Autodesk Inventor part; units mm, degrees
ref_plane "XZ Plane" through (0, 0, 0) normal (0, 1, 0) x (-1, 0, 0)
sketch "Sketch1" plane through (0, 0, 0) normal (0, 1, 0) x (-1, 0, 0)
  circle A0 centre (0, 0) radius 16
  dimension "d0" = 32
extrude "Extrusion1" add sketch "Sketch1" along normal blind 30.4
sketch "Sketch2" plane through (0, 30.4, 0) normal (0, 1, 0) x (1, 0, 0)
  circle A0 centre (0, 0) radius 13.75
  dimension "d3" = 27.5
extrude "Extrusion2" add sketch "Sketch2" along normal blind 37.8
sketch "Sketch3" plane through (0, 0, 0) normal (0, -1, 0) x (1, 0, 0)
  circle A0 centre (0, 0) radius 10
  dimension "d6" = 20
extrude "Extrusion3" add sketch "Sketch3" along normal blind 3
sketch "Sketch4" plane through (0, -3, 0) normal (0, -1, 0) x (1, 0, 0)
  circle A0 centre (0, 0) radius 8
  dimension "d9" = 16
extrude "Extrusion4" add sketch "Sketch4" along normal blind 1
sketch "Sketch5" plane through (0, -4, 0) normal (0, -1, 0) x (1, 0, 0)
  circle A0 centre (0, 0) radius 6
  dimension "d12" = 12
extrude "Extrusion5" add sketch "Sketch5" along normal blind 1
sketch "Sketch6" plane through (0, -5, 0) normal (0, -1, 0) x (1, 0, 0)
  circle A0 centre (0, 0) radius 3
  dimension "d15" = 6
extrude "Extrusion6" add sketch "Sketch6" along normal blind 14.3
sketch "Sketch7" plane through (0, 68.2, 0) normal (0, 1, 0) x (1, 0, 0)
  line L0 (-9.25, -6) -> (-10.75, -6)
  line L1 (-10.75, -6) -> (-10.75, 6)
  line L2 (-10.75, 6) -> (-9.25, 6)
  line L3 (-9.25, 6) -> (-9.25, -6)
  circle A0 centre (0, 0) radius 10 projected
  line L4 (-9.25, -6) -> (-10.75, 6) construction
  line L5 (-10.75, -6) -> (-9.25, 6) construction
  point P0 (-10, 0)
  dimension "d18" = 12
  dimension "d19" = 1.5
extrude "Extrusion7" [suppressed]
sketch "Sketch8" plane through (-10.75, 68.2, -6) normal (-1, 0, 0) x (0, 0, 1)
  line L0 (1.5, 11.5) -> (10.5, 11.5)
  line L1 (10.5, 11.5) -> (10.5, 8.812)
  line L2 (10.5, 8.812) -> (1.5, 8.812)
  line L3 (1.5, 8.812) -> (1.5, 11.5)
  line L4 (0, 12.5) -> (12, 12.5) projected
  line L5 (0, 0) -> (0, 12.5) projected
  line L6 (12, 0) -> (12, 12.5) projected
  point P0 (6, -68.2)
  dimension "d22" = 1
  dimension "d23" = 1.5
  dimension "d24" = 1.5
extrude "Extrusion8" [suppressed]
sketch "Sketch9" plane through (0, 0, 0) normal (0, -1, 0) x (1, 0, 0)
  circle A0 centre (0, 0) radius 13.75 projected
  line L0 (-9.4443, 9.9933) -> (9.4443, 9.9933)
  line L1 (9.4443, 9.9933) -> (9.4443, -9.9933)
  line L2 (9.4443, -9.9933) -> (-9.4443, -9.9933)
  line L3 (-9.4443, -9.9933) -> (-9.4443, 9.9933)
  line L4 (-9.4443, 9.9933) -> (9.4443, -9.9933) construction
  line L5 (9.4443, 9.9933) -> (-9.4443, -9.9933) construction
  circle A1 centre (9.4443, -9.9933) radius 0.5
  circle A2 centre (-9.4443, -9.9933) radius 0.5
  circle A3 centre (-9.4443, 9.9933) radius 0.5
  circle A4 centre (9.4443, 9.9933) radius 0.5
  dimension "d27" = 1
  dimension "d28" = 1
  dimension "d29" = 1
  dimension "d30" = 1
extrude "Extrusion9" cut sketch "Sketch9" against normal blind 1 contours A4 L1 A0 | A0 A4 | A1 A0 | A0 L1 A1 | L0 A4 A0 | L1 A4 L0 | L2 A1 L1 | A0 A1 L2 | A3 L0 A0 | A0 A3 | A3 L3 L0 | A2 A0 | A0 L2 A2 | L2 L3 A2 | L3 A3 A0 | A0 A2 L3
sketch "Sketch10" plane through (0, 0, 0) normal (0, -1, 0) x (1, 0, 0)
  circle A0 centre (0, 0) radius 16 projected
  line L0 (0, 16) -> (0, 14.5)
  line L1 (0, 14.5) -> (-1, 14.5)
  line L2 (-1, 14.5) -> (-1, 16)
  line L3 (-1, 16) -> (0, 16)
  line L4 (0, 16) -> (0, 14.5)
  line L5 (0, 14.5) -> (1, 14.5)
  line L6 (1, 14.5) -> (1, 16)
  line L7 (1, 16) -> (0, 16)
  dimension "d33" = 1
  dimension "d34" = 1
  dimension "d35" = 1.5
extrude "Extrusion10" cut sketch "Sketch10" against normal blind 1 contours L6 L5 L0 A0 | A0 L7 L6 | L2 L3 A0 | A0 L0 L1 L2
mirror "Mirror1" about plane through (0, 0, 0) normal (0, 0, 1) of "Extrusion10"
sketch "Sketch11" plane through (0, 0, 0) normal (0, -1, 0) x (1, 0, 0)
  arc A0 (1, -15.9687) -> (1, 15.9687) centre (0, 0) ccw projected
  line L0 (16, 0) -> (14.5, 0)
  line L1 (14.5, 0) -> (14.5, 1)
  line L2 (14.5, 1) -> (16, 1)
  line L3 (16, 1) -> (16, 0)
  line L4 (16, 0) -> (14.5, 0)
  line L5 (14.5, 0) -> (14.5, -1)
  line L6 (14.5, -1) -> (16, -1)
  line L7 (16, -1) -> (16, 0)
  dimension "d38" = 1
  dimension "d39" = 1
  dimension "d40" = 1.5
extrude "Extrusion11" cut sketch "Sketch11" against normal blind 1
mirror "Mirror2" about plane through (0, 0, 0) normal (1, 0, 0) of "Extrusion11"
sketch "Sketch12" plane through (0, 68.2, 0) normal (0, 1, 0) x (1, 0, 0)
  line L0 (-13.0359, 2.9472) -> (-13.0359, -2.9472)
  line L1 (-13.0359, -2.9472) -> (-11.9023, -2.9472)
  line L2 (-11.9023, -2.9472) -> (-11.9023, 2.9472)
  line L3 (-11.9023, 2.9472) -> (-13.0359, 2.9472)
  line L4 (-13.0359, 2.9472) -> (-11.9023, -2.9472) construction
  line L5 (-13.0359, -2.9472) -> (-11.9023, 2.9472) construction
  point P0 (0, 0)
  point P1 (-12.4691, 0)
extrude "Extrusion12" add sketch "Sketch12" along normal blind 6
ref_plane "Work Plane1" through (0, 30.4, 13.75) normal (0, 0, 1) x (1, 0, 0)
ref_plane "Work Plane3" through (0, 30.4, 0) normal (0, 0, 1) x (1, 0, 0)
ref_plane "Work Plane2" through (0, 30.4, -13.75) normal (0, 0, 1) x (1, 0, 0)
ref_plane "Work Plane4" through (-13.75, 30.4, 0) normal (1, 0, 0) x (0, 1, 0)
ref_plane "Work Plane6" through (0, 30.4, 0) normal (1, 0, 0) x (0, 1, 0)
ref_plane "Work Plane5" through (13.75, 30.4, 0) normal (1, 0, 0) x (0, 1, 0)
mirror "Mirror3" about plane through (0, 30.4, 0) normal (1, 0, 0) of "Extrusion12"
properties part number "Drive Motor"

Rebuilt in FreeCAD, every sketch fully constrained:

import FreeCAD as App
import Part
import Sketcher
from FreeCAD import Vector
Q = App.Units.Quantity


def add_polygon(sketch, points):
    """Adds a closed chain of lines whose ends are joined by coincident constraints."""
    first, n = sketch.GeometryCount, len(points)
    for a, b in zip(points, points[1:] + points[:1]):
        sketch.addGeometry(Part.LineSegment(App.Vector(*a, 0), App.Vector(*b, 0)), False)
    for i in range(n):
        sketch.addConstraint(Sketcher.Constraint("Coincident", first + i, 2, first + (i + 1) % n, 1))

doc = App.newDocument("Part")
params = doc.addObject("Spreadsheet::Sheet", "Params")
for row, (alias, value) in enumerate([
    ("sketch1_diameter", "32 mm"),
    ("pad1_length", "30.4 mm"),
    ("sketch2_diameter", "27.5 mm"),
    ("pad2_length", "37.8 mm"),
    ("sketch3_diameter", "20 mm"),
    ("pad3_length", "3 mm"),
    ("sketch4_diameter", "16 mm"),
    ("pad4_length", "1 mm"),
    ("sketch5_diameter", "12 mm"),
    ("pad5_length", "1 mm"),
    ("sketch6_diameter", "6 mm"),
    ("pad6_length", "14.3 mm"),
    ("sketch7_diameter", "1 mm"),
    ("pocket1_length", "1 mm"),
    ("sketch8_height", "1.5 mm"),
    ("pocket2_length", "1 mm"),
    ("sketch9_width", "1.5 mm"),
    ("pocket3_length", "1 mm"),
    ("pad7_length", "6 mm"),
], start=1):
    params.set(f"A{row}", alias)
    params.set(f"B{row}", "=" + value)
    params.setAlias(f"B{row}", alias)

body = doc.addObject("PartDesign::Body", "Body")

sketch1 = doc.addObject("Sketcher::SketchObject", "Sketch")
body.addObject(sketch1)
sketch1.AttachmentSupport = (doc.XZ_Plane, [""])
sketch1.MapMode = "FlatFace"
sketch1.addGeometry(Part.Circle(Vector(0, 0, 0), Vector(0, 0, 1), 16), False)
sketch1.addConstraint([
    Sketcher.Constraint("Coincident", 0, 3, -1, 1),
    Sketcher.Constraint("Diameter", 0, Q("32 mm")),
])
sketch1.setExpression("Constraints[1]", "Params.sketch1_diameter")
pad1 = doc.addObject("PartDesign::Pad", "Pad")
body.addObject(pad1)
pad1.Profile = sketch1
pad1.setExpression("Length", "Params.pad1_length")
pad1.Reversed = True

sketch2 = doc.addObject("Sketcher::SketchObject", "Sketch001")
body.addObject(sketch2)
sketch2.AttachmentSupport = (doc.XZ_Plane, [""])
sketch2.MapMode = "FlatFace"
sketch2.AttachmentOffset = App.Placement(Vector(0, 0, -30.4), App.Rotation())
sketch2.addGeometry(Part.Circle(Vector(0, 0, 0), Vector(0, 0, 1), 14), False)
sketch2.addConstraint([
    Sketcher.Constraint("Coincident", 0, 3, -1, 1),
    Sketcher.Constraint("Diameter", 0, Q("27.5 mm")),
])
sketch2.setExpression("Constraints[1]", "Params.sketch2_diameter")
pad2 = doc.addObject("PartDesign::Pad", "Pad001")
body.addObject(pad2)
pad2.Profile = sketch2
pad2.setExpression("Length", "Params.pad2_length")
pad2.Reversed = True

sketch3 = doc.addObject("Sketcher::SketchObject", "Sketch002")
body.addObject(sketch3)
sketch3.AttachmentSupport = (doc.XZ_Plane, [""])
sketch3.MapMode = "FlatFace"
sketch3.addGeometry(Part.Circle(Vector(0, 0, 0), Vector(0, 0, 1), 10), False)
sketch3.addConstraint([
    Sketcher.Constraint("Coincident", 0, 3, -1, 1),
    Sketcher.Constraint("Diameter", 0, Q("20 mm")),
])
sketch3.setExpression("Constraints[1]", "Params.sketch3_diameter")
pad3 = doc.addObject("PartDesign::Pad", "Pad002")
body.addObject(pad3)
pad3.Profile = sketch3
pad3.setExpression("Length", "Params.pad3_length")

sketch4 = doc.addObject("Sketcher::SketchObject", "Sketch003")
body.addObject(sketch4)
sketch4.AttachmentSupport = (doc.XZ_Plane, [""])
sketch4.MapMode = "FlatFace"
sketch4.AttachmentOffset = App.Placement(Vector(0, 0, 3), App.Rotation())
sketch4.addGeometry(Part.Circle(Vector(0, 0, 0), Vector(0, 0, 1), 8), False)
sketch4.addConstraint([
    Sketcher.Constraint("Coincident", 0, 3, -1, 1),
    Sketcher.Constraint("Diameter", 0, Q("16 mm")),
])
sketch4.setExpression("Constraints[1]", "Params.sketch4_diameter")
pad4 = doc.addObject("PartDesign::Pad", "Pad003")
body.addObject(pad4)
pad4.Profile = sketch4
pad4.setExpression("Length", "Params.pad4_length")

sketch5 = doc.addObject("Sketcher::SketchObject", "Sketch004")
body.addObject(sketch5)
sketch5.AttachmentSupport = (doc.XZ_Plane, [""])
sketch5.MapMode = "FlatFace"
sketch5.AttachmentOffset = App.Placement(Vector(0, 0, 4), App.Rotation())
sketch5.addGeometry(Part.Circle(Vector(0, 0, 0), Vector(0, 0, 1), 6), False)
sketch5.addConstraint([
    Sketcher.Constraint("Coincident", 0, 3, -1, 1),
    Sketcher.Constraint("Diameter", 0, Q("12 mm")),
])
sketch5.setExpression("Constraints[1]", "Params.sketch5_diameter")
pad5 = doc.addObject("PartDesign::Pad", "Pad004")
body.addObject(pad5)
pad5.Profile = sketch5
pad5.setExpression("Length", "Params.pad5_length")

sketch6 = doc.addObject("Sketcher::SketchObject", "Sketch005")
body.addObject(sketch6)
sketch6.AttachmentSupport = (doc.XZ_Plane, [""])
sketch6.MapMode = "FlatFace"
sketch6.AttachmentOffset = App.Placement(Vector(0, 0, 5), App.Rotation())
sketch6.addGeometry(Part.Circle(Vector(0, 0, 0), Vector(0, 0, 1), 3), False)
sketch6.addConstraint([
    Sketcher.Constraint("Coincident", 0, 3, -1, 1),
    Sketcher.Constraint("Diameter", 0, Q("6 mm")),
])
sketch6.setExpression("Constraints[1]", "Params.sketch6_diameter")
pad6 = doc.addObject("PartDesign::Pad", "Pad005")
body.addObject(pad6)
pad6.Profile = sketch6
pad6.setExpression("Length", "Params.pad6_length")

sketch7 = doc.addObject("Sketcher::SketchObject", "Sketch006")
body.addObject(sketch7)
sketch7.AttachmentSupport = (doc.XZ_Plane, [""])
sketch7.MapMode = "FlatFace"
sketch7.addGeometry([
    Part.Circle(Vector(9.4, 10, 0), Vector(0, 0, 1), 0.5),
    Part.Circle(Vector(9.4, -10, 0), Vector(0, 0, 1), 0.5),
    Part.Circle(Vector(-9.4, 10, 0), Vector(0, 0, 1), 0.5),
    Part.Circle(Vector(-9.4, -10, 0), Vector(0, 0, 1), 0.5),
], False)
sketch7.addConstraint([
    Sketcher.Constraint("Equal", 0, 1),
    Sketcher.Constraint("Equal", 1, 2),
    Sketcher.Constraint("Equal", 2, 3),
    Sketcher.Constraint("Symmetric", 1, 3, 2, 3, -1, 1),
    Sketcher.Constraint("Symmetric", 0, 3, 3, 3, -1, 1),
    Sketcher.Constraint("Symmetric", 0, 3, 2, 3, -2),
    Sketcher.Constraint("Diameter", 0, Q("1 mm")),
    Sketcher.Constraint("DistanceX", -1, 1, 0, 3, Q("9.4443 mm")),
    Sketcher.Constraint("DistanceY", -1, 1, 0, 3, Q("9.9933 mm")),
])
sketch7.setExpression("Constraints[6]", "Params.sketch7_diameter")
pocket1 = doc.addObject("PartDesign::Pocket", "Pocket")
body.addObject(pocket1)
pocket1.Profile = sketch7
pocket1.setExpression("Length", "Params.pocket1_length")

sketch8 = doc.addObject("Sketcher::SketchObject", "Sketch007")
body.addObject(sketch8)
sketch8.AttachmentSupport = (doc.XZ_Plane, [""])
sketch8.MapMode = "FlatFace"
add_polygon(sketch8, [(1, 14.5), (1, 16), (-1, 16), (-1, 14.5)])
sketch8.addConstraint([
    Sketcher.Constraint("Vertical", 0),
    Sketcher.Constraint("Horizontal", 1),
    Sketcher.Constraint("Vertical", 2),
    Sketcher.Constraint("Horizontal", 3),
    Sketcher.Constraint("DistanceY", 0, 1, 0, 2, Q("1.5 mm")),
    Sketcher.Constraint("DistanceX", -1, 1, 0, 2, Q("1 mm")),
    Sketcher.Constraint("DistanceX", 1, 2, -1, 1, Q("1 mm")),
    Sketcher.Constraint("DistanceY", -1, 1, 0, 2, Q("16 mm")),
])
sketch8.setExpression("Constraints[8]", "Params.sketch8_height")
pocket2 = doc.addObject("PartDesign::Pocket", "Pocket001")
body.addObject(pocket2)
pocket2.Profile = sketch8
pocket2.setExpression("Length", "Params.pocket2_length")
doc.recompute()

mirrored = doc.addObject("PartDesign::Mirrored", "Mirrored")
body.addObject(mirrored)
mirrored.Originals = [pocket2]
mirrored.MirrorPlane = (doc.XY_Plane, [""])
body.Tip = mirrored

sketch9 = doc.addObject("Sketcher::SketchObject", "Sketch008")
body.addObject(sketch9)
sketch9.AttachmentSupport = (doc.XZ_Plane, [""])
sketch9.MapMode = "FlatFace"
add_polygon(sketch9, [(14.5, -1), (16, -1), (16, 1), (14.5, 1)])
sketch9.addConstraint([
    Sketcher.Constraint("Horizontal", 0),
    Sketcher.Constraint("Vertical", 1),
    Sketcher.Constraint("Horizontal", 2),
    Sketcher.Constraint("Vertical", 3),
    Sketcher.Constraint("DistanceX", 0, 1, 0, 2, Q("1.5 mm")),
    Sketcher.Constraint("DistanceY", 0, 2, -1, 1, Q("1 mm")),
    Sketcher.Constraint("DistanceY", -1, 1, 1, 2, Q("1 mm")),
    Sketcher.Constraint("DistanceX", -1, 1, 0, 2, Q("16 mm")),
])
sketch9.setExpression("Constraints[8]", "Params.sketch9_width")
pocket3 = doc.addObject("PartDesign::Pocket", "Pocket002")
body.addObject(pocket3)
pocket3.Profile = sketch9
pocket3.setExpression("Length", "Params.pocket3_length")
doc.recompute()

mirrored2 = doc.addObject("PartDesign::Mirrored", "Mirrored001")
body.addObject(mirrored2)
mirrored2.Originals = [pocket3]
mirrored2.MirrorPlane = (doc.YZ_Plane, [""])
body.Tip = mirrored2

sketch10 = doc.addObject("Sketcher::SketchObject", "Sketch009")
body.addObject(sketch10)
sketch10.AttachmentSupport = (doc.XZ_Plane, [""])
sketch10.MapMode = "FlatFace"
sketch10.AttachmentOffset = App.Placement(Vector(0, 0, -68.2), App.Rotation())
add_polygon(sketch10, [(-11.9, -2.9), (-13, -2.9), (-13, 2.9), (-11.9, 2.9)])
sketch10.addConstraint([
    Sketcher.Constraint("Horizontal", 0),
    Sketcher.Constraint("Vertical", 1),
    Sketcher.Constraint("Horizontal", 2),
    Sketcher.Constraint("Vertical", 3),
    Sketcher.Constraint("DistanceX", 0, 2, 0, 1, Q("1.1336 mm")),
    Sketcher.Constraint("DistanceY", 1, 1, 1, 2, Q("5.8944 mm")),
    Sketcher.Constraint("DistanceX", 0, 2, -1, 1, Q("13.036 mm")),
    Sketcher.Constraint("DistanceY", 0, 2, -1, 1, Q("2.9472 mm")),
])
pad7 = doc.addObject("PartDesign::Pad", "Pad006")
body.addObject(pad7)
pad7.Profile = sketch10
pad7.setExpression("Length", "Params.pad7_length")
pad7.Reversed = True
doc.recompute()

mirrored3 = doc.addObject("PartDesign::Mirrored", "Mirrored002")
body.addObject(mirrored3)
mirrored3.Originals = [pad7]
mirrored3.MirrorPlane = (doc.YZ_Plane, [""])
body.Tip = mirrored3

doc.recompute()
